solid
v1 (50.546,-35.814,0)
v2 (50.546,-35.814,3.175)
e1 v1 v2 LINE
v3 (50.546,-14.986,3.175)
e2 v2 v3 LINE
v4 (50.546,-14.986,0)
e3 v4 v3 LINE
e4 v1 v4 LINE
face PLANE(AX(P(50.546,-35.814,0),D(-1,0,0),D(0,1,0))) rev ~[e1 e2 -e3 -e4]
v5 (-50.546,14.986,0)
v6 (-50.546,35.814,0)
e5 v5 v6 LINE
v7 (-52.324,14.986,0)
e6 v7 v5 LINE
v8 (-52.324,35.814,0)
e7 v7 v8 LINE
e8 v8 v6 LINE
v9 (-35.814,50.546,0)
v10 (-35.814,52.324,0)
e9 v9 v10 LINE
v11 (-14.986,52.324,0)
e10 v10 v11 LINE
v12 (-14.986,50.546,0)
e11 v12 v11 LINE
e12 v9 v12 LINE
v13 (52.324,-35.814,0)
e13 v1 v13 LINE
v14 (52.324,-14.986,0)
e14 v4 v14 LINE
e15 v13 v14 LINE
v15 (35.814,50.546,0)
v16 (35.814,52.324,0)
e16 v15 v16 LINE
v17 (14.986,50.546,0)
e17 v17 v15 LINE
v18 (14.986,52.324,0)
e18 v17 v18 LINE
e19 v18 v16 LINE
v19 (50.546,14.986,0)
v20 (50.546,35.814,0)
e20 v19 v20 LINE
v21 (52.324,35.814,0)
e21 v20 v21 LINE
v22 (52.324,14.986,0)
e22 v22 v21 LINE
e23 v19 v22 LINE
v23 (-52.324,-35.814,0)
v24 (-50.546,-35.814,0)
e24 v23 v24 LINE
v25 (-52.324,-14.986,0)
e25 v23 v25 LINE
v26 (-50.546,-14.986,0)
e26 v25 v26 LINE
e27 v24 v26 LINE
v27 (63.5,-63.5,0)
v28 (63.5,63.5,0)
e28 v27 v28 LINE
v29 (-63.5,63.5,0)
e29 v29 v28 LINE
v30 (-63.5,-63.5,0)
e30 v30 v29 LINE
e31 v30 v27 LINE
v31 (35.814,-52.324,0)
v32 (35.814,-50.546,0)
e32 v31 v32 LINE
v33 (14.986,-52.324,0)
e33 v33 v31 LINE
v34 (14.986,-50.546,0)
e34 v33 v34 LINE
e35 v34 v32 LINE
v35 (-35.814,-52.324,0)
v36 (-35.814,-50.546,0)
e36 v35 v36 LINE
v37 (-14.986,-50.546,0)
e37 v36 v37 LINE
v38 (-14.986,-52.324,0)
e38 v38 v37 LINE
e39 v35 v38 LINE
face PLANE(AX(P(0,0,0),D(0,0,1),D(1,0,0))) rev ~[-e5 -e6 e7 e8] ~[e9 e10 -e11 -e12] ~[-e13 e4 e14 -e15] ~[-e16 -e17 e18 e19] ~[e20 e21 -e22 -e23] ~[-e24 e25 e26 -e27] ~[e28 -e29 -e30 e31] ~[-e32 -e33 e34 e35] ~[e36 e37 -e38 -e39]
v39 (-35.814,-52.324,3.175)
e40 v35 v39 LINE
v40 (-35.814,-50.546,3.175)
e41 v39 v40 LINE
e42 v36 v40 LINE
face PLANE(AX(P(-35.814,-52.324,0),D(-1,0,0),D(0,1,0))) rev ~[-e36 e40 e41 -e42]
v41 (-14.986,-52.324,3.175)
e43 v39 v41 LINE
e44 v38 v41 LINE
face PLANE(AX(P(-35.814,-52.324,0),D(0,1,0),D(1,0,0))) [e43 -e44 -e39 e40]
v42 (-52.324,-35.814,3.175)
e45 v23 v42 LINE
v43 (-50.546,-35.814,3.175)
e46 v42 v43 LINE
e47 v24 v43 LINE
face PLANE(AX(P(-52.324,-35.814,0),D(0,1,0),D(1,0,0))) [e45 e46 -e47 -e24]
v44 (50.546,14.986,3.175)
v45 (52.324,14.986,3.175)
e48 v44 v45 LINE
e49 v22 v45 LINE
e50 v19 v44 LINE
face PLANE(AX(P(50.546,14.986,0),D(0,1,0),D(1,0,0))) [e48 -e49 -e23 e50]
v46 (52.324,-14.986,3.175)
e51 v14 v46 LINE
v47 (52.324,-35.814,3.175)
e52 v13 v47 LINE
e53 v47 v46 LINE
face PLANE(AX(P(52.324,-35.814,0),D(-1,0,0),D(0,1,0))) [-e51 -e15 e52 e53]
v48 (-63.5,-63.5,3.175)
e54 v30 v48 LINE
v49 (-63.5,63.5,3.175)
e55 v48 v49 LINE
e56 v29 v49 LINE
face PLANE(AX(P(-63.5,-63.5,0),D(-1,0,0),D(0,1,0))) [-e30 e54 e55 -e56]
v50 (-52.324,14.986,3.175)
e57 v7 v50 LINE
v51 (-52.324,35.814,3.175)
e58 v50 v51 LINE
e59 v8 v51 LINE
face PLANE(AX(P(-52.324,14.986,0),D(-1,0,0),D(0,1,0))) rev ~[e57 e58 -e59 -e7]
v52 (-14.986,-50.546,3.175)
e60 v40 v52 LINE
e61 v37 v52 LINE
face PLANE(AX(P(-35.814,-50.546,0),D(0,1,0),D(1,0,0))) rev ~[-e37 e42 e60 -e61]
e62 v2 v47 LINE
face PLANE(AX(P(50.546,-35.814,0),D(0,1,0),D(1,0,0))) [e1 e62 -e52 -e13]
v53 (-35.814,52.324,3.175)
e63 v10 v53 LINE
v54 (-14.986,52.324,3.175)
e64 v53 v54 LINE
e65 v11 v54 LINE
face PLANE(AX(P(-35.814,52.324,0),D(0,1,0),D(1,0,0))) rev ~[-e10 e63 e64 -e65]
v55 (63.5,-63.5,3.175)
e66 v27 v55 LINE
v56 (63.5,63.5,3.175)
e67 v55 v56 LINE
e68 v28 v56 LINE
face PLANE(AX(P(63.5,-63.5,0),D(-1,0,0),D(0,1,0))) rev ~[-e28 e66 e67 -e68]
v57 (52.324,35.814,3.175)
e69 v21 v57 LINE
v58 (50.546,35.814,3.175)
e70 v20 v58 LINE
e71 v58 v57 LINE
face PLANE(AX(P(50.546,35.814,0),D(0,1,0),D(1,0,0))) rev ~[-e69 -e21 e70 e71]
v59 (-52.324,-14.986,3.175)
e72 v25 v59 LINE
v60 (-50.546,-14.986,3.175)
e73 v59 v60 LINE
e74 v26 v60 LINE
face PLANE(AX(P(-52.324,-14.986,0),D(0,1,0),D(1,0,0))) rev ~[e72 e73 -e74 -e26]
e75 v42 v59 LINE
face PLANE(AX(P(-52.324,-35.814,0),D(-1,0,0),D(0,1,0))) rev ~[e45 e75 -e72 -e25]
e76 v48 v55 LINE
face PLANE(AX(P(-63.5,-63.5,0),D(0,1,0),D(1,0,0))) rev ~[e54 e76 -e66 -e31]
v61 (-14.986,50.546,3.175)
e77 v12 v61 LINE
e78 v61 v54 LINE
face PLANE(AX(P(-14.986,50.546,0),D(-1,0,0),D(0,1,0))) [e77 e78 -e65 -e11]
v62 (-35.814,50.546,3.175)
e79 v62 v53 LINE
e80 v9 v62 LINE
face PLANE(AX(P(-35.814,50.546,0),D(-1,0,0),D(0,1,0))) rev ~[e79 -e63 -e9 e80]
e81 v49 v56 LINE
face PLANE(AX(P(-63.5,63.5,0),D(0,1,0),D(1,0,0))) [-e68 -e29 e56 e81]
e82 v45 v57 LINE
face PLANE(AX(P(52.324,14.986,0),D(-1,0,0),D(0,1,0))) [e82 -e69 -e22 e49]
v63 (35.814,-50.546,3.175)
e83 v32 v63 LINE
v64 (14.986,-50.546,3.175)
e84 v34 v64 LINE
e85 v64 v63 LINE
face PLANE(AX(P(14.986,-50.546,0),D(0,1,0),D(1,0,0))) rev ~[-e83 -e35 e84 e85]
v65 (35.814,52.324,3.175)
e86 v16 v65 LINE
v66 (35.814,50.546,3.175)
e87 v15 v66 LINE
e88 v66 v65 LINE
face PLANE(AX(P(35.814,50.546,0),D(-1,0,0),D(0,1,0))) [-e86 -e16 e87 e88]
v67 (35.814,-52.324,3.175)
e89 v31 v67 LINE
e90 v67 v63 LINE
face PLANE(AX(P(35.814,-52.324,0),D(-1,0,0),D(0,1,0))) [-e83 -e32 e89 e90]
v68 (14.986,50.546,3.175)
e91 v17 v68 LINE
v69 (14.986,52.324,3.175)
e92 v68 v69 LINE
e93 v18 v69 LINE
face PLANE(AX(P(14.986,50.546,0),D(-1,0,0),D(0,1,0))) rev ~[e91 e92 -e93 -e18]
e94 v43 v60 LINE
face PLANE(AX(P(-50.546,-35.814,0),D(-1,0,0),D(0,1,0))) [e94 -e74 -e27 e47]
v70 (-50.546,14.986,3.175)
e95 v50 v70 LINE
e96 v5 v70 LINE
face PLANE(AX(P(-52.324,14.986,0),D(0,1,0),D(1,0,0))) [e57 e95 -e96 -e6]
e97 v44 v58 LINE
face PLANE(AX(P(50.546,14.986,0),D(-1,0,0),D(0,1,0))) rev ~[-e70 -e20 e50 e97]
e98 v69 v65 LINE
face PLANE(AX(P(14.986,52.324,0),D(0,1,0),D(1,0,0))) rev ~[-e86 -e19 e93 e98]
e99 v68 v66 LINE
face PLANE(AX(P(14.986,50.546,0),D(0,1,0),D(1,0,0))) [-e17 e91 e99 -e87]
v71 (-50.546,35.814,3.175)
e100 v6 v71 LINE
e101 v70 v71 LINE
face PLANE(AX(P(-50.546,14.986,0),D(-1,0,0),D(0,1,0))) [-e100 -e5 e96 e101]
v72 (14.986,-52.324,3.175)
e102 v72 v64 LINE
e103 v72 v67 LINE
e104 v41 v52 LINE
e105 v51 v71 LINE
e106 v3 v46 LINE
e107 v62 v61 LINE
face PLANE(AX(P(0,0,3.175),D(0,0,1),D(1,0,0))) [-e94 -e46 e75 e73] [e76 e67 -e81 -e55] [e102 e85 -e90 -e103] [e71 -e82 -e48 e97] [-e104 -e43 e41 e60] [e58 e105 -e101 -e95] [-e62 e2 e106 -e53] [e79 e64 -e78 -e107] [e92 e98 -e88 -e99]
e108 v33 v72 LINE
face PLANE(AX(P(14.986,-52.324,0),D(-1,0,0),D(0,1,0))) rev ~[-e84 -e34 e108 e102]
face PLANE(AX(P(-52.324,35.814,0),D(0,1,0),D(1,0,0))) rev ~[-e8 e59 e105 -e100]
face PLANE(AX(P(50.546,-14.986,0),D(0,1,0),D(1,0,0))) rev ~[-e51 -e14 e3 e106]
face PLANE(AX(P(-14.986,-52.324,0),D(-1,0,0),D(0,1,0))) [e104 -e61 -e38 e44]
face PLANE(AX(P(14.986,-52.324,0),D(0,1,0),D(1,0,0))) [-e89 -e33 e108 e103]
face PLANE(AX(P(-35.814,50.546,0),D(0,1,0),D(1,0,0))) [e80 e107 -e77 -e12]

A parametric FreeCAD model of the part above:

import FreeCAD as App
import Part
import Sketcher
Q = App.Units.Quantity

doc = App.newDocument("Part")
body = doc.addObject("PartDesign::Body", "Body")

# Sketch on XY plane
sketch1 = doc.addObject("Sketcher::SketchObject", "Sketch")
body.addObject(sketch1)
sketch1.AttachmentSupport = (doc.XY_Plane, [""])
sketch1.MapMode = "FlatFace"
sketch1.addGeometry([
    Part.LineSegment(App.Vector(-63.5, 63.5, 0), App.Vector(-63.5, -63.5, 0)),  # 0
    Part.LineSegment(App.Vector(-63.5, -63.5, 0), App.Vector(63.5, -63.5, 0)),  # 1
    Part.LineSegment(App.Vector(63.5, -63.5, 0), App.Vector(63.5, 63.5, 0)),  # 2
    Part.LineSegment(App.Vector(63.5, 63.5, 0), App.Vector(-63.5, 63.5, 0)),  # 3
    Part.LineSegment(App.Vector(-14.986, -52.324, 0), App.Vector(-35.814, -52.324, 0)),  # 4
    Part.LineSegment(App.Vector(-35.814, -52.324, 0), App.Vector(-35.814, -50.546, 0)),  # 5
    Part.LineSegment(App.Vector(-35.814, -50.546, 0), App.Vector(-14.986, -50.546, 0)),  # 6
    Part.LineSegment(App.Vector(-14.986, -50.546, 0), App.Vector(-14.986, -52.324, 0)),  # 7
    Part.LineSegment(App.Vector(-50.546, -35.814, 0), App.Vector(-52.324, -35.814, 0)),  # 8
    Part.LineSegment(App.Vector(-52.324, -35.814, 0), App.Vector(-52.324, -14.986, 0)),  # 9
    Part.LineSegment(App.Vector(-52.324, -14.986, 0), App.Vector(-50.546, -14.986, 0)),  # 10
    Part.LineSegment(App.Vector(-50.546, -14.986, 0), App.Vector(-50.546, -35.814, 0)),  # 11
    Part.LineSegment(App.Vector(35.814, -52.324, 0), App.Vector(14.986, -52.324, 0)),  # 12
    Part.LineSegment(App.Vector(14.986, -52.324, 0), App.Vector(14.986, -50.546, 0)),  # 13
    Part.LineSegment(App.Vector(14.986, -50.546, 0), App.Vector(35.814, -50.546, 0)),  # 14
    Part.LineSegment(App.Vector(35.814, -50.546, 0), App.Vector(35.814, -52.324, 0)),  # 15
    Part.LineSegment(App.Vector(52.324, -35.814, 0), App.Vector(50.546, -35.814, 0)),  # 16
    Part.LineSegment(App.Vector(50.546, -35.814, 0), App.Vector(50.546, -14.986, 0)),  # 17
    Part.LineSegment(App.Vector(50.546, -14.986, 0), App.Vector(52.324, -14.986, 0)),  # 18
    Part.LineSegment(App.Vector(52.324, -14.986, 0), App.Vector(52.324, -35.814, 0)),  # 19
    Part.LineSegment(App.Vector(-50.546, 14.986, 0), App.Vector(-52.324, 14.986, 0)),  # 20
    Part.LineSegment(App.Vector(-52.324, 14.986, 0), App.Vector(-52.324, 35.814, 0)),  # 21
    Part.LineSegment(App.Vector(-52.324, 35.814, 0), App.Vector(-50.546, 35.814, 0)),  # 22
    Part.LineSegment(App.Vector(-50.546, 35.814, 0), App.Vector(-50.546, 14.986, 0)),  # 23
    Part.LineSegment(App.Vector(-14.986, 50.546, 0), App.Vector(-35.814, 50.546, 0)),  # 24
    Part.LineSegment(App.Vector(-35.814, 50.546, 0), App.Vector(-35.814, 52.324, 0)),  # 25
    Part.LineSegment(App.Vector(-35.814, 52.324, 0), App.Vector(-14.986, 52.324, 0)),  # 26
    Part.LineSegment(App.Vector(-14.986, 52.324, 0), App.Vector(-14.986, 50.546, 0)),  # 27
    Part.LineSegment(App.Vector(52.324, 14.986, 0), App.Vector(50.546, 14.986, 0)),  # 28
    Part.LineSegment(App.Vector(50.546, 14.986, 0), App.Vector(50.546, 35.814, 0)),  # 29
    Part.LineSegment(App.Vector(50.546, 35.814, 0), App.Vector(52.324, 35.814, 0)),  # 30
    Part.LineSegment(App.Vector(52.324, 35.814, 0), App.Vector(52.324, 14.986, 0)),  # 31
    Part.LineSegment(App.Vector(35.814, 50.546, 0), App.Vector(14.986, 50.546, 0)),  # 32
    Part.LineSegment(App.Vector(14.986, 50.546, 0), App.Vector(14.986, 52.324, 0)),  # 33
    Part.LineSegment(App.Vector(14.986, 52.324, 0), App.Vector(35.814, 52.324, 0)),  # 34
    Part.LineSegment(App.Vector(35.814, 52.324, 0), App.Vector(35.814, 50.546, 0)),  # 35
], False)
sketch1.addConstraint([
    Sketcher.Constraint("Coincident", 0, 2, 1, 1),
    Sketcher.Constraint("Coincident", 1, 2, 2, 1),
    Sketcher.Constraint("Coincident", 2, 2, 3, 1),
    Sketcher.Constraint("Coincident", 3, 2, 0, 1),
    Sketcher.Constraint("Coincident", 4, 2, 5, 1),
    Sketcher.Constraint("Coincident", 5, 2, 6, 1),
    Sketcher.Constraint("Coincident", 6, 2, 7, 1),
    Sketcher.Constraint("Coincident", 7, 2, 4, 1),
    Sketcher.Constraint("Coincident", 8, 2, 9, 1),
    Sketcher.Constraint("Coincident", 9, 2, 10, 1),
    Sketcher.Constraint("Coincident", 10, 2, 11, 1),
    Sketcher.Constraint("Coincident", 11, 2, 8, 1),
    Sketcher.Constraint("Coincident", 12, 2, 13, 1),
    Sketcher.Constraint("Coincident", 13, 2, 14, 1),
    Sketcher.Constraint("Coincident", 14, 2, 15, 1),
    Sketcher.Constraint("Coincident", 15, 2, 12, 1),
    Sketcher.Constraint("Coincident", 16, 2, 17, 1),
    Sketcher.Constraint("Coincident", 17, 2, 18, 1),
    Sketcher.Constraint("Coincident", 18, 2, 19, 1),
    Sketcher.Constraint("Coincident", 19, 2, 16, 1),
    Sketcher.Constraint("Coincident", 20, 2, 21, 1),
    Sketcher.Constraint("Coincident", 21, 2, 22, 1),
    Sketcher.Constraint("Coincident", 22, 2, 23, 1),
    Sketcher.Constraint("Coincident", 23, 2, 20, 1),
    Sketcher.Constraint("Coincident", 24, 2, 25, 1),
    Sketcher.Constraint("Coincident", 25, 2, 26, 1),
    Sketcher.Constraint("Coincident", 26, 2, 27, 1),
    Sketcher.Constraint("Coincident", 27, 2, 24, 1),
    Sketcher.Constraint("Coincident", 28, 2, 29, 1),
    Sketcher.Constraint("Coincident", 29, 2, 30, 1),
    Sketcher.Constraint("Coincident", 30, 2, 31, 1),
    Sketcher.Constraint("Coincident", 31, 2, 28, 1),
    Sketcher.Constraint("Coincident", 32, 2, 33, 1),
    Sketcher.Constraint("Coincident", 33, 2, 34, 1),
    Sketcher.Constraint("Coincident", 34, 2, 35, 1),
    Sketcher.Constraint("Coincident", 35, 2, 32, 1),
    Sketcher.Constraint("Vertical", 0),
    Sketcher.Constraint("Horizontal", 1),
    Sketcher.Constraint("Vertical", 2),
    Sketcher.Constraint("Horizontal", 3),
    Sketcher.Constraint("Horizontal", 4),
    Sketcher.Constraint("Vertical", 5),
    Sketcher.Constraint("Horizontal", 6),
    Sketcher.Constraint("Vertical", 7),
    Sketcher.Constraint("Horizontal", 8),
    Sketcher.Constraint("Vertical", 9),
    Sketcher.Constraint("Horizontal", 10),
    Sketcher.Constraint("Vertical", 11),
    Sketcher.Constraint("Horizontal", 12),
    Sketcher.Constraint("Vertical", 13),
    Sketcher.Constraint("Horizontal", 14),
    Sketcher.Constraint("Vertical", 15),
    Sketcher.Constraint("Horizontal", 16),
    Sketcher.Constraint("Vertical", 17),
    Sketcher.Constraint("Horizontal", 18),
    Sketcher.Constraint("Vertical", 19),
    Sketcher.Constraint("Horizontal", 20),
    Sketcher.Constraint("Vertical", 21),
    Sketcher.Constraint("Horizontal", 22),
    Sketcher.Constraint("Vertical", 23),
    Sketcher.Constraint("Horizontal", 24),
    Sketcher.Constraint("Vertical", 25),
    Sketcher.Constraint("Horizontal", 26),
    Sketcher.Constraint("Vertical", 27),
    Sketcher.Constraint("Horizontal", 28),
    Sketcher.Constraint("Vertical", 29),
    Sketcher.Constraint("Horizontal", 30),
    Sketcher.Constraint("Vertical", 31),
    Sketcher.Constraint("Horizontal", 32),
    Sketcher.Constraint("Vertical", 33),
    Sketcher.Constraint("Horizontal", 34),
    Sketcher.Constraint("Vertical", 35),
    Sketcher.Constraint("Symmetric", 0, 2, 2, 2, -1, 1),
    Sketcher.Constraint("Symmetric", 18, 2, 20, 2, -1, 1),
    Sketcher.Constraint("Symmetric", 16, 2, 22, 2, -1, 1),
    Sketcher.Constraint("Symmetric", 14, 2, 24, 2, -1, 1),
    Sketcher.Constraint("Symmetric", 12, 2, 26, 2, -1, 1),
    Sketcher.Constraint("Symmetric", 10, 2, 28, 2, -1, 1),
    Sketcher.Constraint("Symmetric", 8, 2, 30, 2, -1, 1),
    Sketcher.Constraint("Symmetric", 6, 2, 32, 2, -1, 1),
    Sketcher.Constraint("Symmetric", 4, 2, 34, 2, -1, 1),
    Sketcher.Constraint("Symmetric", 7, 2, 12, 2, -2),
    Sketcher.Constraint("Symmetric", 5, 2, 14, 2, -2),
    Sketcher.Constraint("Symmetric", 11, 2, 16, 2, -2),
    Sketcher.Constraint("Symmetric", 9, 2, 18, 2, -2),
    Sketcher.Constraint("Equal", 3, 0),
    Sketcher.Constraint("Equal", 30, 5),
    Sketcher.Constraint("Equal", 34, 9),
    Sketcher.Constraint("DistanceX", 1, 1, 1, 2, Q("5 in")),
    Sketcher.Constraint("DistanceX", 4, 2, 12, 2, Q("2 in")),
    Sketcher.Constraint("DistanceY", 8, 2, 20, 2, Q("2 in")),
    Sketcher.Constraint("DistanceX", 4, 2, 4, 1, Q("0.82 in")),
    Sketcher.Constraint("DistanceX", 8, 2, 8, 1, Q("0.07 in")),
    Sketcher.Constraint("DistanceY", 5, 2, 9, 2, Q("1.4 in")),
    Sketcher.Constraint("DistanceX", 13, 2, 16, 2, Q("1.4 in")),
])
pad1 = doc.addObject("PartDesign::Pad", "Pad")
body.addObject(pad1)
pad1.Profile = sketch1
pad1.Length = Q("0.125 in")

doc.recompute()
